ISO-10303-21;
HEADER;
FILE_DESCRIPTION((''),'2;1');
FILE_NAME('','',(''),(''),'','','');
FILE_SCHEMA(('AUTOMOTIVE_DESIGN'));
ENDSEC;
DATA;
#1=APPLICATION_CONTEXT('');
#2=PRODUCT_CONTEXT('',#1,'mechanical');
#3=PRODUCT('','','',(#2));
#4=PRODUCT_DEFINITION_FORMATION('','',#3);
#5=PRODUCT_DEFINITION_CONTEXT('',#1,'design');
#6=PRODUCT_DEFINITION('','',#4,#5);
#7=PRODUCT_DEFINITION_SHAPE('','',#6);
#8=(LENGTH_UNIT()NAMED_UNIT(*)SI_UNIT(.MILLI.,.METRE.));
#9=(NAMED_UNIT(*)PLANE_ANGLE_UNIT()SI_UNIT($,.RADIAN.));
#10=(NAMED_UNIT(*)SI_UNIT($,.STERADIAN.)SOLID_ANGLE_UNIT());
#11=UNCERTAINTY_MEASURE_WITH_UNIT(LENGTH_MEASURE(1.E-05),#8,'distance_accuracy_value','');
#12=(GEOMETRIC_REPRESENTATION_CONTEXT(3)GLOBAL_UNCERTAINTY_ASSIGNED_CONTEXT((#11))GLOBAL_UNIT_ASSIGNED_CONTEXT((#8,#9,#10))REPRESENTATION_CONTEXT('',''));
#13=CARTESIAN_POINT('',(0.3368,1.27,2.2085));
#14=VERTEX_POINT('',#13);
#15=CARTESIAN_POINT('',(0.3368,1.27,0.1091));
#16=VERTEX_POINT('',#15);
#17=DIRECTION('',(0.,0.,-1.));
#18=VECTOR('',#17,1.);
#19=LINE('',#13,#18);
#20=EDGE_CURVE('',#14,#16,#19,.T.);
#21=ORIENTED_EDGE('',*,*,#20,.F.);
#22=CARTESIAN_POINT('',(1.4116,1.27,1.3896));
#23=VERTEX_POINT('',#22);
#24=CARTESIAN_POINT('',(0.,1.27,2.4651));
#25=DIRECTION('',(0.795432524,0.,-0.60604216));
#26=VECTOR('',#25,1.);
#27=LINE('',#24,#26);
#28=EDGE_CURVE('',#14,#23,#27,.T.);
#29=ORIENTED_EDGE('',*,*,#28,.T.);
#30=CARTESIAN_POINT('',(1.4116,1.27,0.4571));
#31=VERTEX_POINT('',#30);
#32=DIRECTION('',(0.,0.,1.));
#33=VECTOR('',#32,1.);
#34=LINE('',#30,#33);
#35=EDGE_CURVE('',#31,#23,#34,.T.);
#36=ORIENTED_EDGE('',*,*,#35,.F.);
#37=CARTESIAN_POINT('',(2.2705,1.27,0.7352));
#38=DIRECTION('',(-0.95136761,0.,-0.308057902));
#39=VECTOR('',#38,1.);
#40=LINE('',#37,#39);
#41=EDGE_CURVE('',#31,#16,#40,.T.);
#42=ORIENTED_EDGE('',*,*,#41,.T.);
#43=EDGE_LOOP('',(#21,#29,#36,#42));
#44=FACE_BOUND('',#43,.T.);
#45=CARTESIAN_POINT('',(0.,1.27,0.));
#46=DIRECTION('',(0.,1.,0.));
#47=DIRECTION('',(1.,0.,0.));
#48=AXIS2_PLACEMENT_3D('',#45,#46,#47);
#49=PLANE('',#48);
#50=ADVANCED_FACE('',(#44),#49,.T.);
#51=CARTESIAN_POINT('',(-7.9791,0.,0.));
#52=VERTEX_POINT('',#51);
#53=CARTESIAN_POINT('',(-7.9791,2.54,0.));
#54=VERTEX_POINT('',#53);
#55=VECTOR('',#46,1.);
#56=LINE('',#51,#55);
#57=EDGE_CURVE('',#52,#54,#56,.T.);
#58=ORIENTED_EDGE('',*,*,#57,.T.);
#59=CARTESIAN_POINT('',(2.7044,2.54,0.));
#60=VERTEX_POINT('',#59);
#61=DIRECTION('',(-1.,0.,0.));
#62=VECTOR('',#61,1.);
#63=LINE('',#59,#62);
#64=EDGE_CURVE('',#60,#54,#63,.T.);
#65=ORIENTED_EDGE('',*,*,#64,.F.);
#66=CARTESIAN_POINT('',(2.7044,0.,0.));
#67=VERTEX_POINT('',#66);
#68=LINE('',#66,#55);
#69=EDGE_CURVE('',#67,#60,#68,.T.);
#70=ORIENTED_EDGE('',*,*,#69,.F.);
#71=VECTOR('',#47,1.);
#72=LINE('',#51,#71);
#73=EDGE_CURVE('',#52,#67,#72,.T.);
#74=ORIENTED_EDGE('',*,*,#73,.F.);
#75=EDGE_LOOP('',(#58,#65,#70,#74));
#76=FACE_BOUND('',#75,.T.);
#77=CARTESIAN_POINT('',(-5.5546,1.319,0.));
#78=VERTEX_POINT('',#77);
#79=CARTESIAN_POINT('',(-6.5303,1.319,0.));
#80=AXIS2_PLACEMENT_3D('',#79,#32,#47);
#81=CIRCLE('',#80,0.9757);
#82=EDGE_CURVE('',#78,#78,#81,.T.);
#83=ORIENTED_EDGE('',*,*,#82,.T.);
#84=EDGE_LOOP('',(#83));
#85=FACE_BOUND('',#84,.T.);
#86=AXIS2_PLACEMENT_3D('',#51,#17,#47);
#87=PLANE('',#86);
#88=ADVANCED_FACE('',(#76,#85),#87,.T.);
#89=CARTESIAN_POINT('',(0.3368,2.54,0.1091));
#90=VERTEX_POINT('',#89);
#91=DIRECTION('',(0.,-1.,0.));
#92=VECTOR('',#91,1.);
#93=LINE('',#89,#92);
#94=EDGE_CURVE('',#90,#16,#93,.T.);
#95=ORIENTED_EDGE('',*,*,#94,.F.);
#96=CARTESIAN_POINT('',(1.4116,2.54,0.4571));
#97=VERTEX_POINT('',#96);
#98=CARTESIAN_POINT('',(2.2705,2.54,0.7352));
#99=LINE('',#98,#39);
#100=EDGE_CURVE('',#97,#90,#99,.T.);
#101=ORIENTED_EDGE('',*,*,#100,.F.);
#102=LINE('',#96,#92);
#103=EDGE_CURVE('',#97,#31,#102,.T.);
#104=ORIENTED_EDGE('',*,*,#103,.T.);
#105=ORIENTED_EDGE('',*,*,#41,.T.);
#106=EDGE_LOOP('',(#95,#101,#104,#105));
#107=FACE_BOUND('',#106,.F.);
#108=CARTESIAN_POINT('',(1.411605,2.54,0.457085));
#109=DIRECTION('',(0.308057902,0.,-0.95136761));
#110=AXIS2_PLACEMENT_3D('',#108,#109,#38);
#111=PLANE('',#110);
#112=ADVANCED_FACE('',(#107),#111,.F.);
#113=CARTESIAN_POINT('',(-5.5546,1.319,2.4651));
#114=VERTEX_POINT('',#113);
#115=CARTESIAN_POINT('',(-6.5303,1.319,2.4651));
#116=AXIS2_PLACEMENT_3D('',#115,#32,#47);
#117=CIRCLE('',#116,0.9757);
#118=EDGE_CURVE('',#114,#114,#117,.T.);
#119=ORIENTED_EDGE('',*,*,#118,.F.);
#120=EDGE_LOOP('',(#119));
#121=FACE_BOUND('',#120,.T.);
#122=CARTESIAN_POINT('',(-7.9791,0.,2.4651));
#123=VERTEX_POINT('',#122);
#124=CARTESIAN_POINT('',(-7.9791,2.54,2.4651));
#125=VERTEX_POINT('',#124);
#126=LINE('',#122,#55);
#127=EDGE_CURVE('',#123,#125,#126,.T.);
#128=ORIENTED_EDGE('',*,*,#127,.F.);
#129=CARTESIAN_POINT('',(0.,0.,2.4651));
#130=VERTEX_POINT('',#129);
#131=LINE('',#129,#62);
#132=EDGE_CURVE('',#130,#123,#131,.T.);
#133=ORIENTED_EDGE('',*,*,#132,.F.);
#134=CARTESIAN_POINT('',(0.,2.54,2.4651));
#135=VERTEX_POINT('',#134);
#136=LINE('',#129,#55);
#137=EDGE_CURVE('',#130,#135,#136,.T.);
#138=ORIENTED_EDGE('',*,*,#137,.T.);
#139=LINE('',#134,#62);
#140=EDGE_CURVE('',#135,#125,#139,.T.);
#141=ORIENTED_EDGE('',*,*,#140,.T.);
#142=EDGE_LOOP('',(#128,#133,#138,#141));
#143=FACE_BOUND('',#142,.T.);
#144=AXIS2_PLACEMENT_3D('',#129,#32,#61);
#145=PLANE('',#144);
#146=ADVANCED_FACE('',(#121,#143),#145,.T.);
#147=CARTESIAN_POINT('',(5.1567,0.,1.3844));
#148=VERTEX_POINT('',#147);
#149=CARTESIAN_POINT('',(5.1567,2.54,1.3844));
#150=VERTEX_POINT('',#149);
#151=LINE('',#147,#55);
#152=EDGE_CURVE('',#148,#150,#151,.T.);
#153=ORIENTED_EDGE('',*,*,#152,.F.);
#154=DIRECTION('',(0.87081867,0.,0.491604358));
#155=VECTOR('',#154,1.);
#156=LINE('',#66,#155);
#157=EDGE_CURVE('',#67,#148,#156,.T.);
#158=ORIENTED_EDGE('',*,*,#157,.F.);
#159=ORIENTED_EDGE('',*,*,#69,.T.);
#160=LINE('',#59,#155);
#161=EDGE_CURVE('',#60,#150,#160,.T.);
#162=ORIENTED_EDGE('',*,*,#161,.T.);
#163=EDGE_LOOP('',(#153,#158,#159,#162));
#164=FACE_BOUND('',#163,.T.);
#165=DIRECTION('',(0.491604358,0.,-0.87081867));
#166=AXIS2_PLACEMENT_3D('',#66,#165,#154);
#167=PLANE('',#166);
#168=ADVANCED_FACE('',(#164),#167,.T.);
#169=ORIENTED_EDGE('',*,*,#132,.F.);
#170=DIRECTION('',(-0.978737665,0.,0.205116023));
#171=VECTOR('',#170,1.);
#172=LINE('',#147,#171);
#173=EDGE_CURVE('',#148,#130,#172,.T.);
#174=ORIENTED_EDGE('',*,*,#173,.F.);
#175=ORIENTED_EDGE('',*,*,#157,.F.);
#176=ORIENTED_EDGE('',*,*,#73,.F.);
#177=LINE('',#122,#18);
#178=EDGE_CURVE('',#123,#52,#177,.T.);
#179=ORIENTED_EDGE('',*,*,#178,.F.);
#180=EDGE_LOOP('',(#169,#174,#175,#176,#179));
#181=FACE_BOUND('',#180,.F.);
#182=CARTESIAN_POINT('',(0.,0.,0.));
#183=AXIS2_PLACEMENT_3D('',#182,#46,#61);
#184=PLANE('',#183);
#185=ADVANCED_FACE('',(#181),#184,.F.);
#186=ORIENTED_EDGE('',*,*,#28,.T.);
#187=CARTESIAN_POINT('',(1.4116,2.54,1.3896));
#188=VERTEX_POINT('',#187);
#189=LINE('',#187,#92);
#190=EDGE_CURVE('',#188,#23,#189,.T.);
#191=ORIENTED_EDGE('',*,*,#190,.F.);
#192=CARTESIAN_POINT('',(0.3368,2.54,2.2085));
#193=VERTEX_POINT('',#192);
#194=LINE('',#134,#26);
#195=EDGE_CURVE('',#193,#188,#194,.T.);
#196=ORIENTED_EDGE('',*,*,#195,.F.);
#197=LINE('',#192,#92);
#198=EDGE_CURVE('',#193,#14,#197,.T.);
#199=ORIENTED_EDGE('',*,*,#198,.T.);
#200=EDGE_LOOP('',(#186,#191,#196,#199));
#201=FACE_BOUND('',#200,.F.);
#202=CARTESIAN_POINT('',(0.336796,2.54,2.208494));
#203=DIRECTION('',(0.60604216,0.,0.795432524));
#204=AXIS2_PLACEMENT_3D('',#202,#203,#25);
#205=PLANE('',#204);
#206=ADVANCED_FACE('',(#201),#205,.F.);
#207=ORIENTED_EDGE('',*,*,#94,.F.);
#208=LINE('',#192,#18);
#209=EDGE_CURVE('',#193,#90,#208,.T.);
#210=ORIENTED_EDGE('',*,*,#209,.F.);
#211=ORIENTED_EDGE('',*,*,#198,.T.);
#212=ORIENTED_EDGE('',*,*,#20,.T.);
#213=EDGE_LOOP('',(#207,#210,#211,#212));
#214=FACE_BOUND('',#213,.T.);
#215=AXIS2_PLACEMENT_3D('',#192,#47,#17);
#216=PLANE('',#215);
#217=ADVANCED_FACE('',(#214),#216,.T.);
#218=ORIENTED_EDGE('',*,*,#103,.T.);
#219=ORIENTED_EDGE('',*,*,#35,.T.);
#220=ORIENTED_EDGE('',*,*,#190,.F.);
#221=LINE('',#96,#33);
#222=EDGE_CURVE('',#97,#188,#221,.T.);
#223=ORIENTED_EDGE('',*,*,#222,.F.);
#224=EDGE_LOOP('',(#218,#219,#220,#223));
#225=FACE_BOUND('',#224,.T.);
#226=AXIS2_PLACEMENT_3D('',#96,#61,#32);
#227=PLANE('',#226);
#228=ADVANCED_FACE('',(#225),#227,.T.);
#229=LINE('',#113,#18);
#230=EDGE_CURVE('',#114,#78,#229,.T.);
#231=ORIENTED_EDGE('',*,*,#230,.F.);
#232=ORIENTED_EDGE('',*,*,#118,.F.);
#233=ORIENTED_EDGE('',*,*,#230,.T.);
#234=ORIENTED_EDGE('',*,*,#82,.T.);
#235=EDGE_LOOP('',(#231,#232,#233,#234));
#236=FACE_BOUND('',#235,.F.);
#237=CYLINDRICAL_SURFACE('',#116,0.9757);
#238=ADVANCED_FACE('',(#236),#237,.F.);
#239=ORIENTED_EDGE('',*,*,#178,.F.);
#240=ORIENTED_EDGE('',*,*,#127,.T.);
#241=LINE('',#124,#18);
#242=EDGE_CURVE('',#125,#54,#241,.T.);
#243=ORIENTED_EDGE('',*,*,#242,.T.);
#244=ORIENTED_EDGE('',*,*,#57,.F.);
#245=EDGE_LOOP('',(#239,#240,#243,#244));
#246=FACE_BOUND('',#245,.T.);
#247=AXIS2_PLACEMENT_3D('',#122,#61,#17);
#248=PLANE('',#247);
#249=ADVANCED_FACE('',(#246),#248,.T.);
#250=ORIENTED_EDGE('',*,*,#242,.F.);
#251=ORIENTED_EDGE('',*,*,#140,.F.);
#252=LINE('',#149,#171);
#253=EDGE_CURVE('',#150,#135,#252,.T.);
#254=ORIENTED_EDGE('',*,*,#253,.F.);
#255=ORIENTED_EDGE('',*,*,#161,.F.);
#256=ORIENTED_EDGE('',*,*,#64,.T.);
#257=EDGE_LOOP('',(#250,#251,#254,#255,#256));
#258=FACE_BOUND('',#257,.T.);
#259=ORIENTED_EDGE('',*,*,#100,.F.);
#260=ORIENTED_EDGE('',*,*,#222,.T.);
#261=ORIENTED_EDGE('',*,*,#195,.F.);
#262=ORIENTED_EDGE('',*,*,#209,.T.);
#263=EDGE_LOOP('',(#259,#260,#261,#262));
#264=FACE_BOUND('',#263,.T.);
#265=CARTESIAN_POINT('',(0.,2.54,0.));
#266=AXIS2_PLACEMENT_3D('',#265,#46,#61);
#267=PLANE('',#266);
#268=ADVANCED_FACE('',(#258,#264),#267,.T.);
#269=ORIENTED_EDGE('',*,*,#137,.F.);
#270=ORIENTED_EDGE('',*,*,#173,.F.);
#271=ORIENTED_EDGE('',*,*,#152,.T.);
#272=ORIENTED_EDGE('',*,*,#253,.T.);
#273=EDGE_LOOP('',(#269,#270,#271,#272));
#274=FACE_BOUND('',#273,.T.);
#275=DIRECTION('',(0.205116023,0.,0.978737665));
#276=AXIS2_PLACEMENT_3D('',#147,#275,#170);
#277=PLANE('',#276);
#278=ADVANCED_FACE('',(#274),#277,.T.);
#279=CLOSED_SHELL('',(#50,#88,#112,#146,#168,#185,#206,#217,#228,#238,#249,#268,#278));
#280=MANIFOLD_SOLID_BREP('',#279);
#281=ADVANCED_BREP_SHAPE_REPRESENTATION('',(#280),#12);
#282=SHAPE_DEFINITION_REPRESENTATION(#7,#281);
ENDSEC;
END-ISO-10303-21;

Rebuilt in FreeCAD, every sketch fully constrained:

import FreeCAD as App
import Part
import Sketcher
Q = App.Units.Quantity

doc = App.newDocument("Part")
body = doc.addObject("PartDesign::Body", "Body")

sketch1 = body.newObject("Sketcher::SketchObject", "Sketch")
sketch1.AttachmentSupport = (doc.getObject("XZ_Plane"), [""])
sketch1.MapMode = "FlatFace"
sketch1.addGeometry([
    Part.LineSegment(App.Vector(-8, 2.5, 0), App.Vector(0, 2.5, 0)),
    Part.LineSegment(App.Vector(0, 2.5, 0), App.Vector(5.2, 1.4, 0)),
    Part.LineSegment(App.Vector(5.2, 1.4, 0), App.Vector(2.7, 0, 0)),
    Part.LineSegment(App.Vector(2.7, 0, 0), App.Vector(-8, 0, 0)),
    Part.LineSegment(App.Vector(-8, 0, 0), App.Vector(-8, 2.5, 0)),
], False)
sketch1.addConstraint([
    Sketcher.Constraint("Coincident", 0, 2, 1, 1),
    Sketcher.Constraint("Coincident", 1, 2, 2, 1),
    Sketcher.Constraint("Coincident", 2, 2, 3, 1),
    Sketcher.Constraint("Coincident", 3, 2, 4, 1),
    Sketcher.Constraint("Coincident", 4, 2, 0, 1),
    Sketcher.Constraint("Horizontal", 0),
    Sketcher.Constraint("Horizontal", 3),
    Sketcher.Constraint("Vertical", 4),
    Sketcher.Constraint("PointOnObject", 0, 2, -2),
    Sketcher.Constraint("PointOnObject", 2, 2, -1),
    Sketcher.Constraint("DistanceX", 3, 2, 3, 1, Q("0.4206 in")),
    Sketcher.Constraint("DistanceX", 0, 1, 0, 2, 7.979),
    Sketcher.Constraint("DistanceY", 4, 1, 4, 2, 2.465),
    Sketcher.Constraint("DistanceY", -1, 1, 1, 2, Q("0.0545 in")),
    Sketcher.Constraint("Distance", 1, 5.2687),
])
pad1 = body.newObject("PartDesign::Pad", "Pad")
pad1.Profile = sketch1
pad1.Length = Q("0.1 in")
pad1.Reversed = True

sketch2 = body.newObject("Sketcher::SketchObject", "Sketch001")
sketch2.AttachmentSupport = (doc.getObject("XZ_Plane"), [""])
sketch2.MapMode = "FlatFace"
sketch2.AttachmentOffset = App.Placement(App.Vector(0, 0, -0.1 * 25.4), App.Rotation())
sketch2.addGeometry([
    Part.LineSegment(App.Vector(0.3, 0.1, 0), App.Vector(0.3, 2.2, 0)),
    Part.LineSegment(App.Vector(0.3, 2.2, 0), App.Vector(1.4, 1.4, 0)),
    Part.LineSegment(App.Vector(1.4, 1.4, 0), App.Vector(1.4, 0.5, 0)),
    Part.LineSegment(App.Vector(1.4, 0.5, 0), App.Vector(0.3, 0.1, 0)),
], False)
sketch2.addConstraint([
    Sketcher.Constraint("Coincident", 0, 2, 1, 1),
    Sketcher.Constraint("Coincident", 1, 2, 2, 1),
    Sketcher.Constraint("Coincident", 2, 2, 3, 1),
    Sketcher.Constraint("Coincident", 3, 2, 0, 1),
    Sketcher.Constraint("Vertical", 0),
    Sketcher.Constraint("Vertical", 2),
    Sketcher.Constraint("DistanceY", -1, 1, 2, 2, Q("0.018 in")),
    Sketcher.Constraint("Distance", 1, Q("0.0532 in")),
    Sketcher.Constraint("DistanceY", 0, 1, 0, 2, 2.0994),
    Sketcher.Constraint("DistanceY", 2, 2, 2, 1, 0.9325),
    Sketcher.Constraint("DistanceY", -1, 1, 3, 2, Q("0.0043 in")),
    Sketcher.Constraint("DistanceX", -1, 1, 0, 2, 0.3368),
])
pocket1 = body.newObject("PartDesign::Pocket", "Pocket")
pocket1.Profile = sketch2
pocket1.Length = Q("0.05 in")
pocket1.Reversed = True

sketch3 = body.newObject("Sketcher::SketchObject", "Sketch002")
sketch3.AttachmentSupport = (doc.getObject("XY_Plane"), [""])
sketch3.MapMode = "FlatFace"
sketch3.AttachmentOffset = App.Placement(App.Vector(0, 0, 2.4651), App.Rotation())
sketch3.addGeometry(Part.Circle(App.Vector(-6.5, 1.3, 0), App.Vector(0, 0, 1), 1), False)
sketch3.addConstraint([
    Sketcher.Constraint("Diameter", 0, 1.9514),
    Sketcher.Constraint("DistanceX", 0, 3, -1, 1, Q("0.2571 in")),
    Sketcher.Constraint("DistanceY", -1, 1, 0, 3, 1.319),
])
pocket2 = body.newObject("PartDesign::Pocket", "Pocket001")
pocket2.Profile = sketch3
pocket2.Length = Q("0.2 in")

doc.recompute()
